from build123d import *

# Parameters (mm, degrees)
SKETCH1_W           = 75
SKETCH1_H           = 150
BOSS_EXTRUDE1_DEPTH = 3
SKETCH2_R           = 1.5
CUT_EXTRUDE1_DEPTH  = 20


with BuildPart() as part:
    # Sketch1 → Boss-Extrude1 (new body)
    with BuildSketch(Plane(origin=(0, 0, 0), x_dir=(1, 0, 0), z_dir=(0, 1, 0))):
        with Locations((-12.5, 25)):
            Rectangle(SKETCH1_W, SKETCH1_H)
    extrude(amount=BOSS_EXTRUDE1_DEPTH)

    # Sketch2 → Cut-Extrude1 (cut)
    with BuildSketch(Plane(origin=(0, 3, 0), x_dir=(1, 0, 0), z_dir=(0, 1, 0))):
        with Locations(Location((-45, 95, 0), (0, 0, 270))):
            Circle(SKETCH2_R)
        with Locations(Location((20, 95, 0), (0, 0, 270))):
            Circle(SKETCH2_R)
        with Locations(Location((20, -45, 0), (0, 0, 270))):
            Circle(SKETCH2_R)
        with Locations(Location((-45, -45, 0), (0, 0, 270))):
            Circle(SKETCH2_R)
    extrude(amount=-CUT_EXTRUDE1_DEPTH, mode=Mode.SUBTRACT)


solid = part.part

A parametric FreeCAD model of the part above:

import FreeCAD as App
import Part
import Sketcher

doc = App.newDocument("Part")
body = doc.addObject("PartDesign::Body", "Body")

# Sketch on XZ plane
sketch1 = body.newObject("Sketcher::SketchObject", "Sketch")
sketch1.AttachmentSupport = (doc.getObject("XZ_Plane"), [""])
sketch1.MapMode = "FlatFace"
sketch1.addGeometry([
    Part.LineSegment(App.Vector(-50, -100, 0), App.Vector(-50, 50, 0)),
    Part.LineSegment(App.Vector(-50, 50, 0), App.Vector(25, 50, 0)),
    Part.LineSegment(App.Vector(25, 50, 0), App.Vector(25, -100, 0)),
    Part.LineSegment(App.Vector(25, -100, 0), App.Vector(-50, -100, 0)),
], False)
sketch1.addConstraint([
    Sketcher.Constraint("Coincident", 0, 2, 1, 1),
    Sketcher.Constraint("Coincident", 1, 2, 2, 1),
    Sketcher.Constraint("Coincident", 2, 2, 3, 1),
    Sketcher.Constraint("Coincident", 3, 2, 0, 1),
    Sketcher.Constraint("Vertical", 0),
    Sketcher.Constraint("Horizontal", 1),
    Sketcher.Constraint("Vertical", 2),
    Sketcher.Constraint("Horizontal", 3),
    Sketcher.Constraint("DistanceX", 1, 1, 1, 2, 75.0),
    Sketcher.Constraint("DistanceY", 0, 1, 0, 2, 150.0),
    Sketcher.Constraint("DistanceX", 0, 2, -1, 1, 50.0),
    Sketcher.Constraint("DistanceY", -1, 1, 0, 2, 50.0),
])
pad1 = body.newObject("PartDesign::Pad", "Pad")
pad1.Profile = sketch1
pad1.Length = 3
pad1.Reversed = True

# Sketch on XZ plane
sketch2 = body.newObject("Sketcher::SketchObject", "Sketch001")
sketch2.AttachmentSupport = (doc.getObject("XZ_Plane"), [""])
sketch2.MapMode = "FlatFace"
sketch2.AttachmentOffset = App.Placement(App.Vector(0, 0, -3), App.Rotation())
sketch2.addGeometry([
    Part.Circle(App.Vector(-45, -95, 0), App.Vector(0, 0, 1), 1.5),
    Part.Circle(App.Vector(20, -95, 0), App.Vector(0, 0, 1), 1.5),
    Part.Circle(App.Vector(20, 45, 0), App.Vector(0, 0, 1), 1.5),
    Part.Circle(App.Vector(-45, 45, 0), App.Vector(0, 0, 1), 1.5),
], False)
sketch2.addConstraint([
    Sketcher.Constraint("Equal", 0, 1),
    Sketcher.Constraint("Equal", 1, 2),
    Sketcher.Constraint("Equal", 2, 3),
    Sketcher.Constraint("Horizontal", 0, 3, 1, 3),
    Sketcher.Constraint("Horizontal", 2, 3, 3, 3),
    Sketcher.Constraint("Vertical", 1, 3, 2, 3),
    Sketcher.Constraint("Vertical", 0, 3, 3, 3),
    Sketcher.Constraint("Diameter", 0, 3.0),
    Sketcher.Constraint("DistanceX", 0, 3, -1, 1, 45.0),
    Sketcher.Constraint("DistanceY", 0, 3, -1, 1, 95.0),
    Sketcher.Constraint("DistanceX", -1, 1, 1, 3, 20.0),
    Sketcher.Constraint("DistanceY", -1, 1, 2, 3, 45.0),
])
pocket1 = body.newObject("PartDesign::Pocket", "Pocket")
pocket1.Profile = sketch2
pocket1.Length = 20
pocket1.Reversed = True

doc.recompute()
